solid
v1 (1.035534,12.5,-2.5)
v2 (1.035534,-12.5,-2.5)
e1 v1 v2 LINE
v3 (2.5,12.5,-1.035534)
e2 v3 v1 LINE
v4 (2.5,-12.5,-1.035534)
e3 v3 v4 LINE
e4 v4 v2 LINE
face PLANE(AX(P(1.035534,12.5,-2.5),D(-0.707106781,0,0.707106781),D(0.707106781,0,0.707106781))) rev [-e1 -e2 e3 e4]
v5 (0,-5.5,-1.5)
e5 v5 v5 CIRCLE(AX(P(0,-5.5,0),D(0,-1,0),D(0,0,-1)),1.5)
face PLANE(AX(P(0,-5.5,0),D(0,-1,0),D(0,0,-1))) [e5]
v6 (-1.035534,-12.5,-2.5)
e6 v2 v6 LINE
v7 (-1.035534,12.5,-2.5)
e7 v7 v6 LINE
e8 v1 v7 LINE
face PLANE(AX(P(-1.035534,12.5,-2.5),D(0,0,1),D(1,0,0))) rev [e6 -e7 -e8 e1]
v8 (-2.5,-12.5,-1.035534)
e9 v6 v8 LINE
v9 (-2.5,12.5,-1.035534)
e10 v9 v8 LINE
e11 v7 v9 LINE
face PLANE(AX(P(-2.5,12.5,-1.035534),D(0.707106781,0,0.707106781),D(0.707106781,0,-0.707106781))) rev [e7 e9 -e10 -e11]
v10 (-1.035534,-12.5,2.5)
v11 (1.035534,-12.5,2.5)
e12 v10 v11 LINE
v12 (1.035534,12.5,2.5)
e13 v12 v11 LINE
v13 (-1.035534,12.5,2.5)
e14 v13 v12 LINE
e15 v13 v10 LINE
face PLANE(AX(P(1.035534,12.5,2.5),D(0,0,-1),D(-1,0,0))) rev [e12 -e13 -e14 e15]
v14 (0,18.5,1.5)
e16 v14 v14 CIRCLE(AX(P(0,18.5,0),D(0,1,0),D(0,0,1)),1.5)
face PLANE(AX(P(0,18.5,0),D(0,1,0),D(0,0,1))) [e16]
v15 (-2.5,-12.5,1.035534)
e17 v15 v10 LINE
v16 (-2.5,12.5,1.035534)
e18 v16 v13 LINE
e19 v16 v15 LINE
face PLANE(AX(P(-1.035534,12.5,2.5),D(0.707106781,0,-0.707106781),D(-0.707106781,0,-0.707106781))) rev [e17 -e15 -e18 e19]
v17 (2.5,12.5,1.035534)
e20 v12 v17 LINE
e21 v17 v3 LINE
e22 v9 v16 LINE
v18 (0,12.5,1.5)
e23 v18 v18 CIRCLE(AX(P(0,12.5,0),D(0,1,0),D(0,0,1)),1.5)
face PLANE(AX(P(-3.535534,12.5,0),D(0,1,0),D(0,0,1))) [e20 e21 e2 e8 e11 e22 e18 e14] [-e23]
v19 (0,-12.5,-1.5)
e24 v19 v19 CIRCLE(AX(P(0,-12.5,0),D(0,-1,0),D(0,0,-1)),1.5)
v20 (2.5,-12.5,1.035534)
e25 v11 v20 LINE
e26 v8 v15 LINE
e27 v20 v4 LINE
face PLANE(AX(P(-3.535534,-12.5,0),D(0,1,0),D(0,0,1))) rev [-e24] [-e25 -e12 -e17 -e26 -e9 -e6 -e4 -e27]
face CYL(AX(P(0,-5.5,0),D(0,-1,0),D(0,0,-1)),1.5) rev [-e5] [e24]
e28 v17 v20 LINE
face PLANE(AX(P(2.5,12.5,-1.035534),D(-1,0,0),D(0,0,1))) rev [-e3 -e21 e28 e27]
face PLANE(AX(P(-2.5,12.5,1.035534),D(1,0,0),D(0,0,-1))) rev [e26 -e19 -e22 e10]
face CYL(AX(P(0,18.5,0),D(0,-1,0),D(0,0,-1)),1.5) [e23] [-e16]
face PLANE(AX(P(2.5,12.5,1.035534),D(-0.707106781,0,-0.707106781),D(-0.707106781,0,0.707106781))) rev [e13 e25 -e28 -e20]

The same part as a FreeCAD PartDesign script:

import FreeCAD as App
import Part
import Sketcher
from FreeCAD import Vector

doc = App.newDocument("Part")
body = doc.addObject("PartDesign::Body", "Body")

# Sketch on XZ plane
sketch1 = doc.addObject("Sketcher::SketchObject", "Sketch")
body.addObject(sketch1)
sketch1.AttachmentSupport = (doc.XZ_Plane, [""])
sketch1.MapMode = "FlatFace"
sketch1.addGeometry(Part.LineSegment(Vector(1.035534, -2.5, 0), Vector(-1.035534, -2.5, 0)), False)
sketch1.addGeometry(Part.LineSegment(Vector(-1.035534, -2.5, 0), Vector(-2.5, -1.035534, 0)), False)
sketch1.addGeometry(Part.LineSegment(Vector(-2.5, -1.035534, 0), Vector(-2.5, 1.035534, 0)), False)
sketch1.addGeometry(Part.LineSegment(Vector(-2.5, 1.035534, 0), Vector(-1.035534, 2.5, 0)), False)
sketch1.addGeometry(Part.LineSegment(Vector(-1.035534, 2.5, 0), Vector(1.035534, 2.5, 0)), False)
sketch1.addGeometry(Part.LineSegment(Vector(1.035534, 2.5, 0), Vector(2.5, 1.035534, 0)), False)
sketch1.addGeometry(Part.LineSegment(Vector(2.5, 1.035534, 0), Vector(2.5, -1.035534, 0)), False)
sketch1.addGeometry(Part.LineSegment(Vector(2.5, -1.035534, 0), Vector(1.035534, -2.5, 0)), False)
sketch1.addConstraint(Sketcher.Constraint("Coincident", 0, 2, 1, 1))
sketch1.addConstraint(Sketcher.Constraint("Coincident", 1, 2, 2, 1))
sketch1.addConstraint(Sketcher.Constraint("Coincident", 2, 2, 3, 1))
sketch1.addConstraint(Sketcher.Constraint("Coincident", 3, 2, 4, 1))
sketch1.addConstraint(Sketcher.Constraint("Coincident", 4, 2, 5, 1))
sketch1.addConstraint(Sketcher.Constraint("Coincident", 5, 2, 6, 1))
sketch1.addConstraint(Sketcher.Constraint("Coincident", 6, 2, 7, 1))
sketch1.addConstraint(Sketcher.Constraint("Coincident", 7, 2, 0, 1))
sketch1.addConstraint(Sketcher.Constraint("Horizontal", 0))
sketch1.addConstraint(Sketcher.Constraint("Vertical", 2))
sketch1.addConstraint(Sketcher.Constraint("Horizontal", 4))
sketch1.addConstraint(Sketcher.Constraint("Vertical", 6))
sketch1.addConstraint(Sketcher.Constraint("Symmetric", 0, 2, 4, 2, -1, 1))
sketch1.addConstraint(Sketcher.Constraint("Symmetric", 1, 2, 5, 2, -1, 1))
sketch1.addConstraint(Sketcher.Constraint("Perpendicular", 1, 3))
sketch1.addConstraint(Sketcher.Constraint("Perpendicular", 5, 7))
sketch1.addConstraint(Sketcher.Constraint("Horizontal", 2, 2, 5, 2))
sketch1.addConstraint(Sketcher.Constraint("Horizontal", 1, 2, 6, 2))
sketch1.addConstraint(Sketcher.Constraint("Vertical", 0, 2, 3, 2))
sketch1.addConstraint(Sketcher.Constraint("Equal", 4, 2))
sketch1.addConstraint(Sketcher.Constraint("DistanceY", 0, 2, 3, 2, 5.0))
sketch1.addConstraint(Sketcher.Constraint("DistanceX", 0, 2, 0, 1, 2.071068))
pad1 = doc.addObject("PartDesign::Pad", "Pad")
body.addObject(pad1)
pad1.Profile = sketch1
pad1.Length = 25
pad1.Midplane = True

# Sketch on XZ plane
sketch2 = doc.addObject("Sketcher::SketchObject", "Sketch001")
body.addObject(sketch2)
sketch2.AttachmentSupport = (doc.XZ_Plane, [""])
sketch2.MapMode = "FlatFace"
sketch2.AttachmentOffset = App.Placement(Vector(0, 0, -12.5), App.Rotation())
sketch2.addGeometry(Part.Circle(Vector(0, 0, 0), Vector(0, 0, 1), 1.5), False)
sketch2.addConstraint(Sketcher.Constraint("Coincident", 0, 3, -1, 1))
sketch2.addConstraint(Sketcher.Constraint("Diameter", 0, 3.0))
pad2 = doc.addObject("PartDesign::Pad", "Pad001")
body.addObject(pad2)
pad2.Profile = sketch2
pad2.Length = 6
pad2.Reversed = True

# Sketch on XZ plane
sketch3 = doc.addObject("Sketcher::SketchObject", "Sketch002")
body.addObject(sketch3)
sketch3.AttachmentSupport = (doc.XZ_Plane, [""])
sketch3.MapMode = "FlatFace"
sketch3.AttachmentOffset = App.Placement(Vector(0, 0, 12.5), App.Rotation())
sketch3.addGeometry(Part.Circle(Vector(0, 0, 0), Vector(0, 0, 1), 1.5), False)
sketch3.addConstraint(Sketcher.Constraint("Coincident", 0, 3, -1, 1))
sketch3.addConstraint(Sketcher.Constraint("Diameter", 0, 3.0))
pocket1 = doc.addObject("PartDesign::Pocket", "Pocket")
body.addObject(pocket1)
pocket1.Profile = sketch3
pocket1.Length = 7

doc.recompute()
